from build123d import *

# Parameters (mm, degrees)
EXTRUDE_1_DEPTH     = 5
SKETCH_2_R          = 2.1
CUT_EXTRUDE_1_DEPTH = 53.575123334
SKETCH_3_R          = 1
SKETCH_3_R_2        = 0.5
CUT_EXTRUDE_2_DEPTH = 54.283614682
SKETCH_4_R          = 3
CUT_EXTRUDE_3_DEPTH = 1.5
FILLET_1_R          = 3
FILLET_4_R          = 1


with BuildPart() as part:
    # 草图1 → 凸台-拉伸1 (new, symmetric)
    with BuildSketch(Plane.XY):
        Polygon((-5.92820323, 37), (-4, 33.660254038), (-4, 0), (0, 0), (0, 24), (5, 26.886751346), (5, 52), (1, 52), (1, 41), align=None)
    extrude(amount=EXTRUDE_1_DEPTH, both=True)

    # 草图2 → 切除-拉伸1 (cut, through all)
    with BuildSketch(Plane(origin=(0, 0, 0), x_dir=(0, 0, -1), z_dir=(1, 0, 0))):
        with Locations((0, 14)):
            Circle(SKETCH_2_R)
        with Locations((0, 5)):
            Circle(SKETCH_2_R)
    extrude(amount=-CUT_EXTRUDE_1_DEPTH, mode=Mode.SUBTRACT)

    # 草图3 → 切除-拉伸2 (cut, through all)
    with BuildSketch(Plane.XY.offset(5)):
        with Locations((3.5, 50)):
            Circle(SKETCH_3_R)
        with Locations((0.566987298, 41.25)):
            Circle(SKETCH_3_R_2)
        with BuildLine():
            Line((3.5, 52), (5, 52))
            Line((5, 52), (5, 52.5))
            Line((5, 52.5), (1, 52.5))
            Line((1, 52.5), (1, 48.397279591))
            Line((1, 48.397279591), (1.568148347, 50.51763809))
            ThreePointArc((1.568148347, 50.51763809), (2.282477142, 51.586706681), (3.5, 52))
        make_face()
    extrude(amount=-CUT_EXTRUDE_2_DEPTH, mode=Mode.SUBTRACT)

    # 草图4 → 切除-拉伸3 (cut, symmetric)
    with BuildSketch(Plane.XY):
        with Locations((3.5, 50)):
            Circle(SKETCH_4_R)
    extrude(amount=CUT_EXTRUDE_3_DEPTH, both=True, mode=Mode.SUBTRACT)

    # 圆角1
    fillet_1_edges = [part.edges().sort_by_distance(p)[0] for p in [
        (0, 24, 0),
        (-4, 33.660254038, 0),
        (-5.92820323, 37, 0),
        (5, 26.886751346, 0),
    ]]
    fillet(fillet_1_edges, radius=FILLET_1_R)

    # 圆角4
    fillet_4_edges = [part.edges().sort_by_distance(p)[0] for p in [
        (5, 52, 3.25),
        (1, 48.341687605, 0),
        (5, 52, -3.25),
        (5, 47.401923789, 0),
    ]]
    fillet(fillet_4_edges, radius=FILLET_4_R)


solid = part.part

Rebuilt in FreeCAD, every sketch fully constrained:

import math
import FreeCAD as App
import Part
import Sketcher

V = App.Vector
Q = App.Units.Quantity


def edges_at(feature, points):
    """Names of the edges that pass closest to the given points."""
    edges = feature.Shape.Edges
    near = lambda p: min(range(len(edges)), key=lambda i: edges[i].distToShape(Part.Vertex(*p))[0])
    return sorted({f"Edge{near(p) + 1}" for p in points})

doc = App.newDocument("Part")
params = doc.addObject("Spreadsheet::Sheet", "Params")
for row, (alias, value) in enumerate([
    ("sketch1_width", "4 mm"),
    ("sketch1_height", "24 mm"),
    ("sketch1_height2", "11 mm"),
    ("sketch1_length", "8 mm"),
    ("pad1_length", "10 mm"),
    ("sketch2_diameter", "4.2 mm"),
    ("sketch3_diameter", "2 mm"),
    ("sketch3_diameter2", "1 mm"),
    ("sketch3_radius", "2 mm"),
    ("sketch3_width", "4 mm"),
    ("sketch3_width2", "1.5 mm"),
    ("sketch4_diameter", "6 mm"),
    ("pocket3_length", "3 mm"),
    ("fillet_radius", "3 mm"),
    ("fillet2_radius", "1 mm"),
], start=1):
    params.set(f"A{row}", alias)
    params.set(f"B{row}", "=" + value)
    params.setAlias(f"B{row}", alias)

body = doc.addObject("PartDesign::Body", "Body")

# Sketch on XY plane
sketch1 = body.newObject("Sketcher::SketchObject", "Sketch")
sketch1.AttachmentSupport = (doc.getObject("XY_Plane"), [""])
sketch1.MapMode = "FlatFace"
sketch1.addGeometry(Part.LineSegment(V(-5.9, 37, 0), V(-4, 33.7, 0)), False)
sketch1.addGeometry(Part.LineSegment(V(-4, 33.7, 0), V(-4, 0, 0)), False)
sketch1.addGeometry(Part.LineSegment(V(-4, 0, 0), V(0, 0, 0)), False)
sketch1.addGeometry(Part.LineSegment(V(0, 0, 0), V(0, 24, 0)), False)
sketch1.addGeometry(Part.LineSegment(V(0, 24, 0), V(5, 26.9, 0)), False)
sketch1.addGeometry(Part.LineSegment(V(5, 26.9, 0), V(5, 52, 0)), False)
sketch1.addGeometry(Part.LineSegment(V(5, 52, 0), V(1, 52, 0)), False)
sketch1.addGeometry(Part.LineSegment(V(1, 52, 0), V(1, 41, 0)), False)
sketch1.addGeometry(Part.LineSegment(V(1, 41, 0), V(-5.9, 37, 0)), False)
sketch1.addConstraint(Sketcher.Constraint("Coincident", 0, 2, 1, 1))
sketch1.addConstraint(Sketcher.Constraint("Coincident", 1, 2, 2, 1))
sketch1.addConstraint(Sketcher.Constraint("Coincident", 2, 2, 3, 1))
sketch1.addConstraint(Sketcher.Constraint("Coincident", 3, 2, 4, 1))
sketch1.addConstraint(Sketcher.Constraint("Coincident", 4, 2, 5, 1))
sketch1.addConstraint(Sketcher.Constraint("Coincident", 5, 2, 6, 1))
sketch1.addConstraint(Sketcher.Constraint("Coincident", 6, 2, 7, 1))
sketch1.addConstraint(Sketcher.Constraint("Coincident", 7, 2, 8, 1))
sketch1.addConstraint(Sketcher.Constraint("Coincident", 8, 2, 0, 1))
sketch1.addConstraint(Sketcher.Constraint("Vertical", 1))
sketch1.addConstraint(Sketcher.Constraint("Horizontal", 2))
sketch1.addConstraint(Sketcher.Constraint("Vertical", 3))
sketch1.addConstraint(Sketcher.Constraint("Vertical", 5))
sketch1.addConstraint(Sketcher.Constraint("Horizontal", 6))
sketch1.addConstraint(Sketcher.Constraint("Vertical", 7))
sketch1.addConstraint(Sketcher.Constraint("Coincident", 2, 2, -1, 1))
sketch1.addConstraint(Sketcher.Constraint("Perpendicular", 0, 4))
sketch1.addConstraint(Sketcher.Constraint("Parallel", 4, 8))
sketch1.addConstraint(Sketcher.Constraint("Equal", 2, 6))
sketch1.addConstraint(Sketcher.Constraint("DistanceX", 2, 1, 2, 2, Q("4 mm")))
sketch1.addConstraint(Sketcher.Constraint("DistanceY", 3, 1, 3, 2, Q("24 mm")))
sketch1.addConstraint(Sketcher.Constraint("DistanceY", 7, 2, 7, 1, Q("11 mm")))
sketch1.addConstraint(Sketcher.Constraint("Angle", 0, Q("-60 deg")))
sketch1.addConstraint(Sketcher.Constraint("Distance", 8, Q("8 mm")))
sketch1.addConstraint(Sketcher.Constraint("DistanceX", -1, 1, 4, 2, Q("5 mm")))
sketch1.addConstraint(Sketcher.Constraint("DistanceY", -1, 1, 5, 2, Q("52 mm")))
sketch1.setExpression("Constraints[19]", "Params.sketch1_width")
sketch1.setExpression("Constraints[20]", "Params.sketch1_height")
sketch1.setExpression("Constraints[21]", "Params.sketch1_height2")
sketch1.setExpression("Constraints[23]", "Params.sketch1_length")
pad1 = body.newObject("PartDesign::Pad", "Pad")
pad1.Profile = sketch1
pad1.setExpression("Length", "Params.pad1_length")
pad1.Midplane = True

# Sketch on YZ plane
sketch2 = body.newObject("Sketcher::SketchObject", "Sketch001")
sketch2.AttachmentSupport = (doc.getObject("YZ_Plane"), [""])
sketch2.MapMode = "FlatFace"
sketch2.addGeometry(Part.Circle(V(14, 0, 0), V(0, 0, 1), 2.1), False)
sketch2.addGeometry(Part.Circle(V(5, 0, 0), V(0, 0, 1), 2.1), False)
sketch2.addConstraint(Sketcher.Constraint("Equal", 0, 1))
sketch2.addConstraint(Sketcher.Constraint("PointOnObject", 0, 3, -1))
sketch2.addConstraint(Sketcher.Constraint("PointOnObject", 1, 3, -1))
sketch2.addConstraint(Sketcher.Constraint("Diameter", 0, Q("4.2 mm")))
sketch2.addConstraint(Sketcher.Constraint("DistanceX", -1, 1, 0, 3, Q("14 mm")))
sketch2.addConstraint(Sketcher.Constraint("DistanceX", -1, 1, 1, 3, Q("5 mm")))
sketch2.setExpression("Constraints[3]", "Params.sketch2_diameter")
pocket1 = body.newObject("PartDesign::Pocket", "Pocket")
pocket1.Profile = sketch2
pocket1.Type = "ThroughAll"

# Sketch on XY plane
sketch3 = body.newObject("Sketcher::SketchObject", "Sketch002")
sketch3.AttachmentSupport = (doc.getObject("XY_Plane"), [""])
sketch3.MapMode = "FlatFace"
sketch3.AttachmentOffset = App.Placement(V(0, 0, 5), App.Rotation())
sketch3.addGeometry(Part.Circle(V(3.5, 50, 0), V(0, 0, 1), 1), False)
sketch3.addGeometry(Part.Circle(V(0.6, 41.2, 0), V(0, 0, 1), 0.5), False)
sketch3.addGeometry(Part.LineSegment(V(3.5, 52, 0), V(5, 52, 0)), False)
sketch3.addGeometry(Part.LineSegment(V(5, 52, 0), V(5, 52.5, 0)), False)
sketch3.addGeometry(Part.LineSegment(V(5, 52.5, 0), V(1, 52.5, 0)), False)
sketch3.addGeometry(Part.LineSegment(V(1, 52.5, 0), V(1, 48.4, 0)), False)
sketch3.addGeometry(Part.LineSegment(V(1, 48.4, 0), V(1.6, 50.5, 0)), False)
sketch3.addGeometry(Part.ArcOfCircle(Part.Circle(V(3.5, 50, 0), V(0, 0, 1), 2), math.radians(90), math.radians(165)), False)
sketch3.addConstraint(Sketcher.Constraint("Coincident", 2, 2, 3, 1))
sketch3.addConstraint(Sketcher.Constraint("Coincident", 3, 2, 4, 1))
sketch3.addConstraint(Sketcher.Constraint("Coincident", 4, 2, 5, 1))
sketch3.addConstraint(Sketcher.Constraint("Coincident", 5, 2, 6, 1))
sketch3.addConstraint(Sketcher.Constraint("Tangent", 6, 2, 7, 2))
sketch3.addConstraint(Sketcher.Constraint("Tangent", 7, 1, 2, 1))
sketch3.addConstraint(Sketcher.Constraint("Horizontal", 2))
sketch3.addConstraint(Sketcher.Constraint("Vertical", 3))
sketch3.addConstraint(Sketcher.Constraint("Horizontal", 4))
sketch3.addConstraint(Sketcher.Constraint("Vertical", 5))
sketch3.addConstraint(Sketcher.Constraint("Coincident", 7, 3, 0, 3))
sketch3.addConstraint(Sketcher.Constraint("Diameter", 0, Q("2 mm")))
sketch3.addConstraint(Sketcher.Constraint("Diameter", 1, Q("1 mm")))
sketch3.addConstraint(Sketcher.Constraint("Radius", 7, Q("2 mm")))
sketch3.addConstraint(Sketcher.Constraint("DistanceX", 4, 2, 4, 1, Q("4 mm")))
sketch3.addConstraint(Sketcher.Constraint("Angle", 6, Q("75 deg")))
sketch3.addConstraint(Sketcher.Constraint("DistanceX", 2, 1, 2, 2, Q("1.5 mm")))
sketch3.addConstraint(Sketcher.Constraint("DistanceY", 3, 1, 3, 2, Q("0.5 mm")))
sketch3.addConstraint(Sketcher.Constraint("DistanceY", -1, 1, 0, 3, Q("50 mm")))
sketch3.addConstraint(Sketcher.Constraint("DistanceX", -1, 1, 2, 2, Q("5 mm")))
sketch3.addConstraint(Sketcher.Constraint("DistanceY", -1, 1, 1, 3, Q("41.25 mm")))
sketch3.addConstraint(Sketcher.Constraint("DistanceX", -1, 1, 1, 3, Q("0.566987 mm")))
sketch3.setExpression("Constraints[11]", "Params.sketch3_diameter")
sketch3.setExpression("Constraints[12]", "Params.sketch3_diameter2")
sketch3.setExpression("Constraints[13]", "Params.sketch3_radius")
sketch3.setExpression("Constraints[14]", "Params.sketch3_width")
sketch3.setExpression("Constraints[16]", "Params.sketch3_width2")
pocket2 = body.newObject("PartDesign::Pocket", "Pocket001")
pocket2.Profile = sketch3
pocket2.Type = "ThroughAll"

# Sketch on XY plane
sketch4 = body.newObject("Sketcher::SketchObject", "Sketch003")
sketch4.AttachmentSupport = (doc.getObject("XY_Plane"), [""])
sketch4.MapMode = "FlatFace"
sketch4.addGeometry(Part.Circle(V(3.5, 50, 0), V(0, 0, 1), 3), False)
sketch4.addConstraint(Sketcher.Constraint("Diameter", 0, Q("6 mm")))
sketch4.addConstraint(Sketcher.Constraint("DistanceY", -1, 1, 0, 3, Q("50 mm")))
sketch4.addConstraint(Sketcher.Constraint("DistanceX", -1, 1, 0, 3, Q("3.5 mm")))
sketch4.setExpression("Constraints[0]", "Params.sketch4_diameter")
pocket3 = body.newObject("PartDesign::Pocket", "Pocket002")
pocket3.Profile = sketch4
pocket3.setExpression("Length", "Params.pocket3_length")
pocket3.Midplane = True
doc.recompute()

fillet = body.newObject("PartDesign::Fillet", "Fillet")
fillet.Base = (pocket3, edges_at(pocket3, [
    (0, 24, 0),
    (-4, 33.66, 0),
    (-5.928, 37, 0),
    (5, 26.887, 0),
]))
fillet.setExpression("Radius", "Params.fillet_radius")
doc.recompute()

fillet2 = body.newObject("PartDesign::Fillet", "Fillet001")
fillet2.Base = (fillet, edges_at(fillet, [
    (5, 52, 3.25),
    (1, 48.342, 0),
    (5, 52, -3.25),
    (5, 47.402, 0),
]))
fillet2.setExpression("Radius", "Params.fillet2_radius")

doc.recompute()
